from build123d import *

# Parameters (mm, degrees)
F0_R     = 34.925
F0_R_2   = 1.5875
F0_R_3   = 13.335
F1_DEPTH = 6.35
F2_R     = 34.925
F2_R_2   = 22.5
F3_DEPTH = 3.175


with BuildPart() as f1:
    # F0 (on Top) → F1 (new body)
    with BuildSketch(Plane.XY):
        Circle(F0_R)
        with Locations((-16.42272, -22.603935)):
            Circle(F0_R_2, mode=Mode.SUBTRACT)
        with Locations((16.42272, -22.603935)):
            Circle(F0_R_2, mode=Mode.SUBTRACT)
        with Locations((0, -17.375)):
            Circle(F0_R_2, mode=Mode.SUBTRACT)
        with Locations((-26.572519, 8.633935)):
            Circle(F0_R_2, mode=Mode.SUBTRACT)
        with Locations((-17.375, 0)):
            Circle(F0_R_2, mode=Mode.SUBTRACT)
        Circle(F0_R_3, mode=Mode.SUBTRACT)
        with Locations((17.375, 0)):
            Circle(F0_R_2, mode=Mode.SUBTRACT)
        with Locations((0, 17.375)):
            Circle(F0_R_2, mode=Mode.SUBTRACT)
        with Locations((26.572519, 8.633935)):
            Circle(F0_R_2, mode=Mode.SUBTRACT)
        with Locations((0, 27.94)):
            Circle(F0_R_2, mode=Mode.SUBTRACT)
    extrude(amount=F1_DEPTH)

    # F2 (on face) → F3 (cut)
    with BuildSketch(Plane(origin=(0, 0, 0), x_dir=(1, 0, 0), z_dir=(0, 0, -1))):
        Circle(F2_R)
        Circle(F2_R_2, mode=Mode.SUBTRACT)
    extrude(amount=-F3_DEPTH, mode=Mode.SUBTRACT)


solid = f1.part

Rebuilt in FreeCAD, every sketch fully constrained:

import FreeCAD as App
import Part
import Sketcher
from FreeCAD import Vector
Q = App.Units.Quantity

doc = App.newDocument("Part")
body = doc.addObject("PartDesign::Body", "Body")

# Sketch on XY plane
sketch1 = doc.addObject("Sketcher::SketchObject", "Sketch")
body.addObject(sketch1)
sketch1.AttachmentSupport = (doc.XY_Plane, [""])
sketch1.MapMode = "FlatFace"
sketch1.addGeometry([
    Part.Circle(Vector(0, 0, 0), Vector(0, 0, 1), 34.9),  # 0
    Part.Circle(Vector(-16.4, -22.6, 0), Vector(0, 0, 1), 1.6),  # 1
    Part.Circle(Vector(-17.4, 0, 0), Vector(0, 0, 1), 1.6),  # 2
    Part.Circle(Vector(0, -17.4, 0), Vector(0, 0, 1), 1.6),  # 3
    Part.Circle(Vector(16.4, -22.6, 0), Vector(0, 0, 1), 1.6),  # 4
    Part.Circle(Vector(0, 0, 0), Vector(0, 0, 1), 13.3),  # 5
    Part.Circle(Vector(17.4, 0, 0), Vector(0, 0, 1), 1.6),  # 6
    Part.Circle(Vector(-26.6, 8.6, 0), Vector(0, 0, 1), 1.6),  # 7
    Part.Circle(Vector(26.6, 8.6, 0), Vector(0, 0, 1), 1.6),  # 8
    Part.Circle(Vector(0, 17.4, 0), Vector(0, 0, 1), 1.6),  # 9
    Part.Circle(Vector(0, 27.9, 0), Vector(0, 0, 1), 1.6),  # 10
], False)
sketch1.addConstraint([
    Sketcher.Constraint("Coincident", 0, 3, -1, 1),
    Sketcher.Constraint("Coincident", 5, 3, -1, 1),
    Sketcher.Constraint("Equal", 1, 2),
    Sketcher.Constraint("Equal", 2, 3),
    Sketcher.Constraint("Equal", 3, 4),
    Sketcher.Constraint("Equal", 4, 6),
    Sketcher.Constraint("Equal", 6, 7),
    Sketcher.Constraint("Equal", 7, 8),
    Sketcher.Constraint("Equal", 8, 9),
    Sketcher.Constraint("Equal", 9, 10),
    Sketcher.Constraint("Symmetric", 2, 3, 6, 3, -1, 1),
    Sketcher.Constraint("Symmetric", 3, 3, 9, 3, -1, 1),
    Sketcher.Constraint("Symmetric", 1, 3, 4, 3, -2),
    Sketcher.Constraint("Symmetric", 7, 3, 8, 3, -2),
    Sketcher.Constraint("PointOnObject", 2, 3, -1),
    Sketcher.Constraint("PointOnObject", 3, 3, -2),
    Sketcher.Constraint("PointOnObject", 10, 3, -2),
    Sketcher.Constraint("Diameter", 0, Q("2.75 in")),
    Sketcher.Constraint("Diameter", 5, Q("1.05 in")),
    Sketcher.Constraint("Diameter", 1, Q("0.125 in")),
    Sketcher.Constraint("DistanceY", -1, 1, 10, 3, Q("1.1 in")),
    Sketcher.Constraint("DistanceX", 2, 3, -1, 1, Q("17.375 mm")),
    Sketcher.Constraint("DistanceY", 3, 3, -1, 1, Q("17.375 mm")),
    Sketcher.Constraint("DistanceX", 7, 3, 1, 3, Q("10.149799 mm")),
    Sketcher.Constraint("DistanceX", 1, 3, -1, 1, Q("16.42272 mm")),
    Sketcher.Constraint("DistanceY", 1, 3, 7, 3, Q("31.23787 mm")),
    Sketcher.Constraint("DistanceY", 1, 3, -1, 1, Q("22.603935 mm")),
])
pad1 = doc.addObject("PartDesign::Pad", "Pad")
body.addObject(pad1)
pad1.Profile = sketch1
pad1.Length = Q("0.25 in")

# Sketch on XY plane
sketch2 = doc.addObject("Sketcher::SketchObject", "Sketch001")
body.addObject(sketch2)
sketch2.AttachmentSupport = (doc.XY_Plane, [""])
sketch2.MapMode = "FlatFace"
sketch2.addGeometry([
    Part.Circle(Vector(0, 0, 0), Vector(0, 0, 1), 35),
    Part.Circle(Vector(0, 0, 0), Vector(0, 0, 1), 22),
], False)
sketch2.addConstraint([
    Sketcher.Constraint("Coincident", 0, 3, -1, 1),
    Sketcher.Constraint("Coincident", 1, 3, -1, 1),
    Sketcher.Constraint("Diameter", 0, Q("2.75 in")),
    Sketcher.Constraint("Diameter", 1, Q("45 mm")),
])
pocket1 = doc.addObject("PartDesign::Pocket", "Pocket")
body.addObject(pocket1)
pocket1.Profile = sketch2
pocket1.Length = Q("0.125 in")
pocket1.Reversed = True

doc.recompute()
